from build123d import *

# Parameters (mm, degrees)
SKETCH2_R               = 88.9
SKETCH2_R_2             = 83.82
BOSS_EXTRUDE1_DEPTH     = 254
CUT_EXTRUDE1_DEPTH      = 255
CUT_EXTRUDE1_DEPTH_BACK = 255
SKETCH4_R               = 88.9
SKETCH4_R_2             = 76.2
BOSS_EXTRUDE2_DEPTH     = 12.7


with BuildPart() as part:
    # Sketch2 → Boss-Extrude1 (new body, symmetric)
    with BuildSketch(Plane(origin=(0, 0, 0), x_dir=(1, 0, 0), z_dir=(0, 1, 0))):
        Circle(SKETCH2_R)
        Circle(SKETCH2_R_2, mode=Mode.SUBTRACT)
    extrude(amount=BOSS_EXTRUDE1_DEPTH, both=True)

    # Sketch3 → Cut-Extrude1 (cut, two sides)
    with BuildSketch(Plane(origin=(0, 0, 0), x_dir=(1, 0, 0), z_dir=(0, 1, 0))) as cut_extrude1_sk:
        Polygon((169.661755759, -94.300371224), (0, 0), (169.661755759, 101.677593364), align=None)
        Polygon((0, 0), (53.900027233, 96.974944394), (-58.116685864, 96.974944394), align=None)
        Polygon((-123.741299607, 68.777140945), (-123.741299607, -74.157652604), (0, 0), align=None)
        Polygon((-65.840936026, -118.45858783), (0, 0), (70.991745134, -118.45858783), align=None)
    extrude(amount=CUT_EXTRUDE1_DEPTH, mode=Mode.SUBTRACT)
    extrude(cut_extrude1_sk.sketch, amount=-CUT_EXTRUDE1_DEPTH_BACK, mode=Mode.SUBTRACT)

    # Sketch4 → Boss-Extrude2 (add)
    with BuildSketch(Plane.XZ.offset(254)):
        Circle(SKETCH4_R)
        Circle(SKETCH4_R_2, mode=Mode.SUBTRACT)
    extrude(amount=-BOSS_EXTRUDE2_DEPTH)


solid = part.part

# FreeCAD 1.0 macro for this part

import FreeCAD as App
import Part
import Sketcher

V = App.Vector
Q = App.Units.Quantity


def add_polygon(sketch, points):
    """Adds a closed chain of lines whose ends are joined by coincident constraints."""
    first, n = sketch.GeometryCount, len(points)
    for a, b in zip(points, points[1:] + points[:1]):
        sketch.addGeometry(Part.LineSegment(App.Vector(*a, 0), App.Vector(*b, 0)), False)
    for i in range(n):
        sketch.addConstraint(Sketcher.Constraint("Coincident", first + i, 2, first + (i + 1) % n, 1))

doc = App.newDocument("Part")
body = doc.addObject("PartDesign::Body", "Body")
body.AllowCompound = True

# Sketch on XZ plane
sketch1 = body.newObject("Sketcher::SketchObject", "Sketch")
sketch1.AttachmentSupport = (doc.getObject("XZ_Plane"), [""])
sketch1.MapMode = "FlatFace"
sketch1.addGeometry(Part.Circle(V(0, 0, 0), V(0, 0, 1), 89), False)
sketch1.addGeometry(Part.Circle(V(0, 0, 0), V(0, 0, 1), 84), False)
sketch1.addConstraint(Sketcher.Constraint("Coincident", 0, 3, -1, 1))
sketch1.addConstraint(Sketcher.Constraint("Coincident", 1, 3, -1, 1))
sketch1.addConstraint(Sketcher.Constraint("Diameter", 0, Q("7 in")))
sketch1.addConstraint(Sketcher.Constraint("Diameter", 1, Q("6.6 in")))
pad1 = body.newObject("PartDesign::Pad", "Pad")
pad1.Profile = sketch1
pad1.Length = Q("20 in")
pad1.Midplane = True

# Sketch on XZ plane
sketch2 = body.newObject("Sketcher::SketchObject", "Sketch001")
sketch2.AttachmentSupport = (doc.getObject("XZ_Plane"), [""])
sketch2.MapMode = "FlatFace"
add_polygon(sketch2, [(0, 0), (170, 94), (170, -102)])  # lines 0-2
add_polygon(sketch2, [(0, 0), (54, -97), (-58, -97)])  # lines 3-5
add_polygon(sketch2, [(-124, -69), (-124, 74), (0, 0)])  # lines 6-8
add_polygon(sketch2, [(0, 0), (-66, 118), (71, 118)])  # lines 9-11
sketch2.addConstraint(Sketcher.Constraint("Vertical", 1))
sketch2.addConstraint(Sketcher.Constraint("Horizontal", 4))
sketch2.addConstraint(Sketcher.Constraint("Vertical", 6))
sketch2.addConstraint(Sketcher.Constraint("Horizontal", 10))
sketch2.addConstraint(Sketcher.Constraint("Coincident", 2, 2, -1, 1))
sketch2.addConstraint(Sketcher.Constraint("Coincident", 5, 2, -1, 1))
sketch2.addConstraint(Sketcher.Constraint("Coincident", 7, 2, -1, 1))
sketch2.addConstraint(Sketcher.Constraint("Coincident", 11, 2, -1, 1))
sketch2.addConstraint(Sketcher.Constraint("Perpendicular", 0, 3))
sketch2.addConstraint(Sketcher.Constraint("Perpendicular", 2, 5))
sketch2.addConstraint(Sketcher.Constraint("Perpendicular", 5, 7))
sketch2.addConstraint(Sketcher.Constraint("Perpendicular", 3, 8))
sketch2.addConstraint(Sketcher.Constraint("Perpendicular", 8, 9))
sketch2.addConstraint(Sketcher.Constraint("Perpendicular", 7, 11))
sketch2.addConstraint(Sketcher.Constraint("DistanceX", 10, 1, 10, 2, 136.832681))
sketch2.addConstraint(Sketcher.Constraint("DistanceX", 6, 2, -1, 1, 123.7413))
sketch2.addConstraint(Sketcher.Constraint("Distance", 0, 194.107371))
sketch2.addConstraint(Sketcher.Constraint("Distance", 11, 138.102371))
sketch2.addConstraint(Sketcher.Constraint("DistanceX", 4, 2, 4, 1, 112.016713))
sketch2.addConstraint(Sketcher.Constraint("DistanceY", 1, 2, 1, 1, 195.977965))
pocket1 = body.newObject("PartDesign::Pocket", "Pocket")
pocket1.Profile = sketch2
pocket1.Type = "ThroughAll"
pocket1.Midplane = True

# Sketch on XZ plane
sketch3 = body.newObject("Sketcher::SketchObject", "Sketch002")
sketch3.AttachmentSupport = (doc.getObject("XZ_Plane"), [""])
sketch3.MapMode = "FlatFace"
sketch3.AttachmentOffset = App.Placement(V(0, 0, 10 * 25.4), App.Rotation())
sketch3.addGeometry(Part.Circle(V(0, 0, 0), V(0, 0, 1), 89), False)
sketch3.addGeometry(Part.Circle(V(0, 0, 0), V(0, 0, 1), 76), False)
sketch3.addConstraint(Sketcher.Constraint("Coincident", 0, 3, -1, 1))
sketch3.addConstraint(Sketcher.Constraint("Coincident", 1, 3, -1, 1))
sketch3.addConstraint(Sketcher.Constraint("Diameter", 0, Q("7 in")))
sketch3.addConstraint(Sketcher.Constraint("Diameter", 1, Q("6 in")))
pad2 = body.newObject("PartDesign::Pad", "Pad001")
pad2.Profile = sketch3
pad2.Length = Q("0.5 in")
pad2.Reversed = True

doc.recompute()
